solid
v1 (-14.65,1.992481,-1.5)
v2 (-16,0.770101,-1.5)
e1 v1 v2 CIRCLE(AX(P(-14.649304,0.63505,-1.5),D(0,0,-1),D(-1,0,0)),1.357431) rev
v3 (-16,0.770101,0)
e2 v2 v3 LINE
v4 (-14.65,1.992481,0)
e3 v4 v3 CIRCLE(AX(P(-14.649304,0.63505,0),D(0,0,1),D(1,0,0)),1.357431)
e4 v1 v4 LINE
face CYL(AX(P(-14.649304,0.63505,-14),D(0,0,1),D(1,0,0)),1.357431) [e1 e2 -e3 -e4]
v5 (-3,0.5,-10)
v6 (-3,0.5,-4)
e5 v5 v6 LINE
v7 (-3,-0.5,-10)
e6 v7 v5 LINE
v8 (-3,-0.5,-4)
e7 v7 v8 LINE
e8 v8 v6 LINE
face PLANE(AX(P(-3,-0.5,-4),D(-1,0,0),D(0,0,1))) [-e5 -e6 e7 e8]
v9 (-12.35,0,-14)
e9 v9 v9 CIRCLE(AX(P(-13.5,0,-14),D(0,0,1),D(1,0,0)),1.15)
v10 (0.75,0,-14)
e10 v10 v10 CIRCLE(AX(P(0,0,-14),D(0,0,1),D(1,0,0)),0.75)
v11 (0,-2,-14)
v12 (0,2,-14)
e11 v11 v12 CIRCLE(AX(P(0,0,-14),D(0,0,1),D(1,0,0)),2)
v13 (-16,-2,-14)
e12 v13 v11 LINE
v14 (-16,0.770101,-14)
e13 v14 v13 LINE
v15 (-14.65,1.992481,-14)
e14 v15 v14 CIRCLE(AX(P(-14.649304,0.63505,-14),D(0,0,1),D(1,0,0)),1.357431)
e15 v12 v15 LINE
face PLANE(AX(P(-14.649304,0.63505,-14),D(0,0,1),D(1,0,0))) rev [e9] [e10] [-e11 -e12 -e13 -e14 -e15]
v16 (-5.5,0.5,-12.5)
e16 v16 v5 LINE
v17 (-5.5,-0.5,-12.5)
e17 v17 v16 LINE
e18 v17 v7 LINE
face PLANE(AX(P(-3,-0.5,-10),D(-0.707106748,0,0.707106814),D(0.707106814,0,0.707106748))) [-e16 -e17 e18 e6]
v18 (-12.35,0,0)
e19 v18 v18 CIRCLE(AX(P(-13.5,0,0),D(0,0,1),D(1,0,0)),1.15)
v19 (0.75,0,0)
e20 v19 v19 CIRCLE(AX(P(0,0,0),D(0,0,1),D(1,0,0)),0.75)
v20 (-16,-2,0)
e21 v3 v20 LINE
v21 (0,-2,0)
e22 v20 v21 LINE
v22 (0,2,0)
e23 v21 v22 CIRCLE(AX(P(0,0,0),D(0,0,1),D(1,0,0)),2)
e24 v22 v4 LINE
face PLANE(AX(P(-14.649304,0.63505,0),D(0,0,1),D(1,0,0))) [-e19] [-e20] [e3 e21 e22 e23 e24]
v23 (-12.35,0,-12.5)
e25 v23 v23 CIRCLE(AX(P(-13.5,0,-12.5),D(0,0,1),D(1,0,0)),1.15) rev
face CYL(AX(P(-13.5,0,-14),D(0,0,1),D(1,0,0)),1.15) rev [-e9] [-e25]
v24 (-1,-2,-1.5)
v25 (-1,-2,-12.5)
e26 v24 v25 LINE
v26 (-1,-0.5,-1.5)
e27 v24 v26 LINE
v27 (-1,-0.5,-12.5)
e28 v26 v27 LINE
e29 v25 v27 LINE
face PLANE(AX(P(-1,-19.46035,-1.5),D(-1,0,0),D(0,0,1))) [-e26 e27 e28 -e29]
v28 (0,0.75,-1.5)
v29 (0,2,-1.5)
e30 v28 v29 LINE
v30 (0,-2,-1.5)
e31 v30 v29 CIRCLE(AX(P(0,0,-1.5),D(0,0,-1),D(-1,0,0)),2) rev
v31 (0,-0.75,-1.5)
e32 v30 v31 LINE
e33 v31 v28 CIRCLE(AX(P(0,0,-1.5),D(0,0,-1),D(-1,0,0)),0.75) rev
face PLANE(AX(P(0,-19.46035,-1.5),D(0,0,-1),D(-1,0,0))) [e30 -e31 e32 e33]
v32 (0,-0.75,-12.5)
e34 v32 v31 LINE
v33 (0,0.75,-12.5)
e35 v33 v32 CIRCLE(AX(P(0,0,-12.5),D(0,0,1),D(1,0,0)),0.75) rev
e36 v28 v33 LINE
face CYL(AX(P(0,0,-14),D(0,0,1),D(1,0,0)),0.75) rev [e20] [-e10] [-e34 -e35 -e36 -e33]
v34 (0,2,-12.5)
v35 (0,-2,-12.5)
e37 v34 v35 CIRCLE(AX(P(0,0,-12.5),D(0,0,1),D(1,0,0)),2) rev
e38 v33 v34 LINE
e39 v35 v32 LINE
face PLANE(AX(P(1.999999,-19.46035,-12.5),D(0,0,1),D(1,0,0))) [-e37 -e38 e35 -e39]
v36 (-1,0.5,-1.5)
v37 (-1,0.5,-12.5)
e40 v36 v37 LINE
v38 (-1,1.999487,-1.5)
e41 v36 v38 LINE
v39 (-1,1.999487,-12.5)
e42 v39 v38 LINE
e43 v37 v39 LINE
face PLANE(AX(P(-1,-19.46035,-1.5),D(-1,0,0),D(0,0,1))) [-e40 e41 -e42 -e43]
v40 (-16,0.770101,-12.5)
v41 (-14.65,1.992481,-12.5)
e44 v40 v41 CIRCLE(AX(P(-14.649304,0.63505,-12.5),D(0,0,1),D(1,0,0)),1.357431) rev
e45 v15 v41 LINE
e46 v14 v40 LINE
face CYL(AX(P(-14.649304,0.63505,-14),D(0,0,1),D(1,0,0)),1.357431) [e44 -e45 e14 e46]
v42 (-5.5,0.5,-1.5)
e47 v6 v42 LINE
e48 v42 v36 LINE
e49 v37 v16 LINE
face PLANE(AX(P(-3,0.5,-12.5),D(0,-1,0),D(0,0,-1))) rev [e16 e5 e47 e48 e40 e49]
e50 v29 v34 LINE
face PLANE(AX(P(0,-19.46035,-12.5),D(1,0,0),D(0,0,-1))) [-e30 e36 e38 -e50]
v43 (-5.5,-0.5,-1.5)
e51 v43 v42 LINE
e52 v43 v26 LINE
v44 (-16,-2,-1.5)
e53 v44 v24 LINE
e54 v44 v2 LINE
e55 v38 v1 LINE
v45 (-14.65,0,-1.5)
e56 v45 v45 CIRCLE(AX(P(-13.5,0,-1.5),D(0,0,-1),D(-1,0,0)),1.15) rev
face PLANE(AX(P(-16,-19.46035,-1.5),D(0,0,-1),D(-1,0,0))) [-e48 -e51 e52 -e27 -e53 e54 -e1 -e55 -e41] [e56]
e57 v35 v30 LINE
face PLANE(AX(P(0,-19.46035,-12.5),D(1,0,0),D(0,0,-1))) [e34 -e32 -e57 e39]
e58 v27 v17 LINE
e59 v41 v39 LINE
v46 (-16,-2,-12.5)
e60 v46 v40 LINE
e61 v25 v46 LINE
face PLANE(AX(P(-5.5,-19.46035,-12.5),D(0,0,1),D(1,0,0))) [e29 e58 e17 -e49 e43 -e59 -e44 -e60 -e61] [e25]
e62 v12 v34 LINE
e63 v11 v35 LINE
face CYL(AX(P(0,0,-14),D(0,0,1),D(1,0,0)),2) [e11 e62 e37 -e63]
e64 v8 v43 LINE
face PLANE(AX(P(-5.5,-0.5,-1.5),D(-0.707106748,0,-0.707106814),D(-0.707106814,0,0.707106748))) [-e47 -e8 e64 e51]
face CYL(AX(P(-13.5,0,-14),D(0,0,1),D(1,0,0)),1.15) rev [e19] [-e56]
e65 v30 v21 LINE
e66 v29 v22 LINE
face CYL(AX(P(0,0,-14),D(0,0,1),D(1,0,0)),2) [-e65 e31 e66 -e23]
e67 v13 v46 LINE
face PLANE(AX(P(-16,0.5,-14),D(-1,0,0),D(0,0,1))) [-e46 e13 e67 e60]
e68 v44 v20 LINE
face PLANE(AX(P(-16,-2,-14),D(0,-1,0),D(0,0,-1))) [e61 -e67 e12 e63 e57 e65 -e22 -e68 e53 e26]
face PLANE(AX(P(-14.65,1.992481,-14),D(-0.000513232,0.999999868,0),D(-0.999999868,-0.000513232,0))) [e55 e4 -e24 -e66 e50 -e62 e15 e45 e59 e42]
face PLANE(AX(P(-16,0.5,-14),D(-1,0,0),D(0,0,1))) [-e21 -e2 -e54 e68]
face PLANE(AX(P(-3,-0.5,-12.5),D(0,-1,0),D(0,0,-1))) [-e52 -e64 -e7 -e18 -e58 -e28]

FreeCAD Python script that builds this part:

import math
import FreeCAD as App
import Part
import Sketcher
Q = App.Units.Quantity


def add_polygon(sketch, points):
    """Adds a closed chain of lines whose ends are joined by coincident constraints."""
    first, n = sketch.GeometryCount, len(points)
    for a, b in zip(points, points[1:] + points[:1]):
        sketch.addGeometry(Part.LineSegment(App.Vector(*a, 0), App.Vector(*b, 0)), False)
    for i in range(n):
        sketch.addConstraint(Sketcher.Constraint("Coincident", first + i, 2, first + (i + 1) % n, 1))

doc = App.newDocument("Part")
body = doc.addObject("PartDesign::Body", "Body")

sketch1 = body.newObject("Sketcher::SketchObject", "Sketch")
sketch1.AttachmentSupport = (doc.getObject("XY_Plane"), [""])
sketch1.MapMode = "FlatFace"
sketch1.addGeometry([
    Part.LineSegment(App.Vector(0, 2, 0), App.Vector(-14.65, 1.992481, 0)),
    Part.ArcOfCircle(Part.Circle(App.Vector(-14.649304, 0.63505, 0), App.Vector(0, 0, 1), 1.357431), math.radians(90.029406), math.radians(185.70978)),
    Part.LineSegment(App.Vector(-16, 0.5, 0), App.Vector(-16, -2, 0)),
    Part.LineSegment(App.Vector(-16, -2, 0), App.Vector(0, -2, 0)),
    Part.ArcOfCircle(Part.Circle(App.Vector(0, 0, 0), App.Vector(0, 0, 1), 2), math.radians(-90), math.radians(90.000006)),
    Part.Circle(App.Vector(0, 0, 0), App.Vector(0, 0, 1), 0.75),
    Part.Circle(App.Vector(-13.5, 0, 0), App.Vector(0, 0, 1), 1.15),
], False)
sketch1.addConstraint([
    Sketcher.Constraint("Coincident", 0, 2, 1, 1),
    Sketcher.Constraint("Coincident", 1, 2, 2, 1),
    Sketcher.Constraint("Coincident", 2, 2, 3, 1),
    Sketcher.Constraint("Coincident", 3, 2, 4, 1),
    Sketcher.Constraint("Coincident", 4, 2, 0, 1),
    Sketcher.Constraint("Vertical", 2),
    Sketcher.Constraint("Horizontal", 3),
    Sketcher.Constraint("Coincident", 4, 3, -1, 1),
    Sketcher.Constraint("Coincident", 5, 3, -1, 1),
    Sketcher.Constraint("PointOnObject", 6, 3, -1),
    Sketcher.Constraint("PointOnObject", 3, 2, -2),
    Sketcher.Constraint("PointOnObject", 4, 2, -2),
    Sketcher.Constraint("Radius", 4, Q("2 mm")),
    Sketcher.Constraint("Diameter", 5, Q("1.5 mm")),
    Sketcher.Constraint("Diameter", 6, Q("2.3 mm")),
    Sketcher.Constraint("DistanceX", 3, 1, 3, 2, Q("16 mm")),
    Sketcher.Constraint("DistanceY", 2, 2, 2, 1, Q("2.5 mm")),
    Sketcher.Constraint("DistanceX", 6, 3, -1, 1, Q("13.5 mm")),
    Sketcher.Constraint("Distance", 0, Q("14.650002 mm")),
    Sketcher.Constraint("Radius", 1, Q("1.357431 mm")),
    Sketcher.Constraint("DistanceY", -1, 1, 1, 3, Q("0.63505 mm")),
])
pad1 = body.newObject("PartDesign::Pad", "Pad")
pad1.Profile = sketch1
pad1.Length = 14
pad1.Reversed = True

sketch2 = body.newObject("Sketcher::SketchObject", "Sketch001")
sketch2.AttachmentSupport = (doc.getObject("XZ_Plane"), [""])
sketch2.MapMode = "FlatFace"
sketch2.AttachmentOffset = App.Placement(App.Vector(0, 0, -17.53965), App.Rotation())
add_polygon(sketch2, [(5.3, 3.3), (5.3, -17.3), (-19.3, -17.3), (-19.3, 3.3)])
add_polygon(sketch2, [(-1, -12.5), (-16, -12.5), (-16, -14), (2, -14), (2, -12.5), (0, -12.5), (0, -1.5), (2, -1.5), (2, 0), (-16, 0), (-16, -1.5), (-1, -1.5)])
sketch2.addConstraint([
    Sketcher.Constraint("Vertical", 0),
    Sketcher.Constraint("Horizontal", 1),
    Sketcher.Constraint("Vertical", 2),
    Sketcher.Constraint("Horizontal", 3),
    Sketcher.Constraint("Horizontal", 4),
    Sketcher.Constraint("Vertical", 5),
    Sketcher.Constraint("Horizontal", 6),
    Sketcher.Constraint("Vertical", 7),
    Sketcher.Constraint("Horizontal", 8),
    Sketcher.Constraint("Vertical", 9),
    Sketcher.Constraint("Horizontal", 10),
    Sketcher.Constraint("Vertical", 11),
    Sketcher.Constraint("Horizontal", 12),
    Sketcher.Constraint("Vertical", 13),
    Sketcher.Constraint("Horizontal", 14),
    Sketcher.Constraint("Vertical", 15),
    Sketcher.Constraint("PointOnObject", 8, 2, -2),
    Sketcher.Constraint("PointOnObject", 11, 2, -1),
    Sketcher.Constraint("Horizontal", 4, 2, 7, 2),
    Sketcher.Constraint("Horizontal", 10, 2, 13, 2),
    Sketcher.Constraint("Vertical", 7, 2, 10, 2),
    Sketcher.Constraint("Vertical", 5, 2, 12, 2),
    Sketcher.Constraint("Equal", 7, 11),
    Sketcher.Constraint("DistanceX", 4, 2, 4, 1, Q("15 mm")),
    Sketcher.Constraint("DistanceX", 6, 1, 6, 2, Q("17.999999 mm")),
    Sketcher.Constraint("DistanceX", 8, 2, 8, 1, Q("1.999999 mm")),
    Sketcher.Constraint("DistanceY", 9, 1, 9, 2, Q("11 mm")),
    Sketcher.Constraint("DistanceY", 5, 2, 5, 1, Q("1.5 mm")),
    Sketcher.Constraint("DistanceX", 1, 2, 1, 1, Q("24.639 mm")),
    Sketcher.Constraint("DistanceY", 0, 2, 0, 1, Q("20.632 mm")),
    Sketcher.Constraint("DistanceX", -1, 1, 0, 2, Q("5.316 mm")),
    Sketcher.Constraint("DistanceY", 0, 2, -1, 1, Q("17.316 mm")),
])
pocket1 = body.newObject("PartDesign::Pocket", "Pocket")
pocket1.Profile = sketch2
pocket1.Length = 37
pocket1.Reversed = True

sketch3 = body.newObject("Sketcher::SketchObject", "Sketch002")
sketch3.AttachmentSupport = (doc.getObject("XZ_Plane"), [""])
sketch3.MapMode = "FlatFace"
sketch3.AttachmentOffset = App.Placement(App.Vector(0, 0, -0.5), App.Rotation())
add_polygon(sketch3, [(-3, -4), (-5.5, -1.5), (-1, -1.5), (-1, -12.5), (-5.5, -12.5), (-3, -10)])
sketch3.addConstraint([
    Sketcher.Constraint("Horizontal", 1),
    Sketcher.Constraint("Vertical", 2),
    Sketcher.Constraint("Horizontal", 3),
    Sketcher.Constraint("Vertical", 5),
    Sketcher.Constraint("Perpendicular", 0, 4),
    Sketcher.Constraint("Vertical", 0, 2, 3, 2),
    Sketcher.Constraint("Equal", 0, 4),
    Sketcher.Constraint("DistanceY", 2, 2, 2, 1, Q("11 mm")),
    Sketcher.Constraint("DistanceY", 5, 1, 5, 2, Q("6 mm")),
    Sketcher.Constraint("DistanceX", 1, 1, 1, 2, Q("4.5 mm")),
    Sketcher.Constraint("DistanceX", 1, 2, -1, 1, Q("1 mm")),
    Sketcher.Constraint("DistanceY", 4, 2, -1, 1, Q("10 mm")),
])
pad2 = body.newObject("PartDesign::Pad", "Pad001")
pad2.Profile = sketch3
pad2.Length = 1

doc.recompute()
